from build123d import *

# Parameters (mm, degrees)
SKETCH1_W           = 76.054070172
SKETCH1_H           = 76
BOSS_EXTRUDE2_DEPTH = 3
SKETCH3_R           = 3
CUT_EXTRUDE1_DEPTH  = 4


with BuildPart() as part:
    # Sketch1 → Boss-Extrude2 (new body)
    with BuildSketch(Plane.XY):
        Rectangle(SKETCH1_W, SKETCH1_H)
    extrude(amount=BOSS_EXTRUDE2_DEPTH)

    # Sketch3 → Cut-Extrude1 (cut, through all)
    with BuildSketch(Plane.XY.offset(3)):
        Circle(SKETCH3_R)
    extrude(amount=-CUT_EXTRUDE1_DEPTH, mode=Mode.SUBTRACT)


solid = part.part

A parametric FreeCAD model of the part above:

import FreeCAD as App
import Part
import Sketcher

V = App.Vector

doc = App.newDocument("Part")
body = doc.addObject("PartDesign::Body", "Body")

# Sketch on XY plane
sketch1 = body.newObject("Sketcher::SketchObject", "Sketch")
sketch1.AttachmentSupport = (doc.getObject("XY_Plane"), [""])
sketch1.MapMode = "FlatFace"
sketch1.addGeometry([
    Part.LineSegment(V(-38, 38, 0), V(-38, -38, 0)),
    Part.LineSegment(V(-38, -38, 0), V(38, -38, 0)),
    Part.LineSegment(V(38, -38, 0), V(38, 38, 0)),
    Part.LineSegment(V(38, 38, 0), V(-38, 38, 0)),
], False)
sketch1.addConstraint([
    Sketcher.Constraint("Coincident", 0, 2, 1, 1),
    Sketcher.Constraint("Coincident", 1, 2, 2, 1),
    Sketcher.Constraint("Coincident", 2, 2, 3, 1),
    Sketcher.Constraint("Coincident", 3, 2, 0, 1),
    Sketcher.Constraint("Vertical", 0),
    Sketcher.Constraint("Horizontal", 1),
    Sketcher.Constraint("Vertical", 2),
    Sketcher.Constraint("Horizontal", 3),
    Sketcher.Constraint("Symmetric", 0, 2, 2, 2, -1, 1),
    Sketcher.Constraint("DistanceY", 0, 2, 0, 1, 76.0),
    Sketcher.Constraint("DistanceX", 1, 1, 1, 2, 76.05407),
])
pad1 = body.newObject("PartDesign::Pad", "Pad")
pad1.Profile = sketch1
pad1.Length = 3

# Sketch on XY plane
sketch2 = body.newObject("Sketcher::SketchObject", "Sketch001")
sketch2.AttachmentSupport = (doc.getObject("XY_Plane"), [""])
sketch2.MapMode = "FlatFace"
sketch2.AttachmentOffset = App.Placement(V(0, 0, 3), App.Rotation())
sketch2.addGeometry(Part.Circle(V(0, 0, 0), V(0, 0, 1), 3), False)
sketch2.addConstraint([
    Sketcher.Constraint("Coincident", 0, 3, -1, 1),
    Sketcher.Constraint("Diameter", 0, 6.0),
])
pocket1 = body.newObject("PartDesign::Pocket", "Pocket")
pocket1.Profile = sketch2
pocket1.Type = "ThroughAll"

doc.recompute()
